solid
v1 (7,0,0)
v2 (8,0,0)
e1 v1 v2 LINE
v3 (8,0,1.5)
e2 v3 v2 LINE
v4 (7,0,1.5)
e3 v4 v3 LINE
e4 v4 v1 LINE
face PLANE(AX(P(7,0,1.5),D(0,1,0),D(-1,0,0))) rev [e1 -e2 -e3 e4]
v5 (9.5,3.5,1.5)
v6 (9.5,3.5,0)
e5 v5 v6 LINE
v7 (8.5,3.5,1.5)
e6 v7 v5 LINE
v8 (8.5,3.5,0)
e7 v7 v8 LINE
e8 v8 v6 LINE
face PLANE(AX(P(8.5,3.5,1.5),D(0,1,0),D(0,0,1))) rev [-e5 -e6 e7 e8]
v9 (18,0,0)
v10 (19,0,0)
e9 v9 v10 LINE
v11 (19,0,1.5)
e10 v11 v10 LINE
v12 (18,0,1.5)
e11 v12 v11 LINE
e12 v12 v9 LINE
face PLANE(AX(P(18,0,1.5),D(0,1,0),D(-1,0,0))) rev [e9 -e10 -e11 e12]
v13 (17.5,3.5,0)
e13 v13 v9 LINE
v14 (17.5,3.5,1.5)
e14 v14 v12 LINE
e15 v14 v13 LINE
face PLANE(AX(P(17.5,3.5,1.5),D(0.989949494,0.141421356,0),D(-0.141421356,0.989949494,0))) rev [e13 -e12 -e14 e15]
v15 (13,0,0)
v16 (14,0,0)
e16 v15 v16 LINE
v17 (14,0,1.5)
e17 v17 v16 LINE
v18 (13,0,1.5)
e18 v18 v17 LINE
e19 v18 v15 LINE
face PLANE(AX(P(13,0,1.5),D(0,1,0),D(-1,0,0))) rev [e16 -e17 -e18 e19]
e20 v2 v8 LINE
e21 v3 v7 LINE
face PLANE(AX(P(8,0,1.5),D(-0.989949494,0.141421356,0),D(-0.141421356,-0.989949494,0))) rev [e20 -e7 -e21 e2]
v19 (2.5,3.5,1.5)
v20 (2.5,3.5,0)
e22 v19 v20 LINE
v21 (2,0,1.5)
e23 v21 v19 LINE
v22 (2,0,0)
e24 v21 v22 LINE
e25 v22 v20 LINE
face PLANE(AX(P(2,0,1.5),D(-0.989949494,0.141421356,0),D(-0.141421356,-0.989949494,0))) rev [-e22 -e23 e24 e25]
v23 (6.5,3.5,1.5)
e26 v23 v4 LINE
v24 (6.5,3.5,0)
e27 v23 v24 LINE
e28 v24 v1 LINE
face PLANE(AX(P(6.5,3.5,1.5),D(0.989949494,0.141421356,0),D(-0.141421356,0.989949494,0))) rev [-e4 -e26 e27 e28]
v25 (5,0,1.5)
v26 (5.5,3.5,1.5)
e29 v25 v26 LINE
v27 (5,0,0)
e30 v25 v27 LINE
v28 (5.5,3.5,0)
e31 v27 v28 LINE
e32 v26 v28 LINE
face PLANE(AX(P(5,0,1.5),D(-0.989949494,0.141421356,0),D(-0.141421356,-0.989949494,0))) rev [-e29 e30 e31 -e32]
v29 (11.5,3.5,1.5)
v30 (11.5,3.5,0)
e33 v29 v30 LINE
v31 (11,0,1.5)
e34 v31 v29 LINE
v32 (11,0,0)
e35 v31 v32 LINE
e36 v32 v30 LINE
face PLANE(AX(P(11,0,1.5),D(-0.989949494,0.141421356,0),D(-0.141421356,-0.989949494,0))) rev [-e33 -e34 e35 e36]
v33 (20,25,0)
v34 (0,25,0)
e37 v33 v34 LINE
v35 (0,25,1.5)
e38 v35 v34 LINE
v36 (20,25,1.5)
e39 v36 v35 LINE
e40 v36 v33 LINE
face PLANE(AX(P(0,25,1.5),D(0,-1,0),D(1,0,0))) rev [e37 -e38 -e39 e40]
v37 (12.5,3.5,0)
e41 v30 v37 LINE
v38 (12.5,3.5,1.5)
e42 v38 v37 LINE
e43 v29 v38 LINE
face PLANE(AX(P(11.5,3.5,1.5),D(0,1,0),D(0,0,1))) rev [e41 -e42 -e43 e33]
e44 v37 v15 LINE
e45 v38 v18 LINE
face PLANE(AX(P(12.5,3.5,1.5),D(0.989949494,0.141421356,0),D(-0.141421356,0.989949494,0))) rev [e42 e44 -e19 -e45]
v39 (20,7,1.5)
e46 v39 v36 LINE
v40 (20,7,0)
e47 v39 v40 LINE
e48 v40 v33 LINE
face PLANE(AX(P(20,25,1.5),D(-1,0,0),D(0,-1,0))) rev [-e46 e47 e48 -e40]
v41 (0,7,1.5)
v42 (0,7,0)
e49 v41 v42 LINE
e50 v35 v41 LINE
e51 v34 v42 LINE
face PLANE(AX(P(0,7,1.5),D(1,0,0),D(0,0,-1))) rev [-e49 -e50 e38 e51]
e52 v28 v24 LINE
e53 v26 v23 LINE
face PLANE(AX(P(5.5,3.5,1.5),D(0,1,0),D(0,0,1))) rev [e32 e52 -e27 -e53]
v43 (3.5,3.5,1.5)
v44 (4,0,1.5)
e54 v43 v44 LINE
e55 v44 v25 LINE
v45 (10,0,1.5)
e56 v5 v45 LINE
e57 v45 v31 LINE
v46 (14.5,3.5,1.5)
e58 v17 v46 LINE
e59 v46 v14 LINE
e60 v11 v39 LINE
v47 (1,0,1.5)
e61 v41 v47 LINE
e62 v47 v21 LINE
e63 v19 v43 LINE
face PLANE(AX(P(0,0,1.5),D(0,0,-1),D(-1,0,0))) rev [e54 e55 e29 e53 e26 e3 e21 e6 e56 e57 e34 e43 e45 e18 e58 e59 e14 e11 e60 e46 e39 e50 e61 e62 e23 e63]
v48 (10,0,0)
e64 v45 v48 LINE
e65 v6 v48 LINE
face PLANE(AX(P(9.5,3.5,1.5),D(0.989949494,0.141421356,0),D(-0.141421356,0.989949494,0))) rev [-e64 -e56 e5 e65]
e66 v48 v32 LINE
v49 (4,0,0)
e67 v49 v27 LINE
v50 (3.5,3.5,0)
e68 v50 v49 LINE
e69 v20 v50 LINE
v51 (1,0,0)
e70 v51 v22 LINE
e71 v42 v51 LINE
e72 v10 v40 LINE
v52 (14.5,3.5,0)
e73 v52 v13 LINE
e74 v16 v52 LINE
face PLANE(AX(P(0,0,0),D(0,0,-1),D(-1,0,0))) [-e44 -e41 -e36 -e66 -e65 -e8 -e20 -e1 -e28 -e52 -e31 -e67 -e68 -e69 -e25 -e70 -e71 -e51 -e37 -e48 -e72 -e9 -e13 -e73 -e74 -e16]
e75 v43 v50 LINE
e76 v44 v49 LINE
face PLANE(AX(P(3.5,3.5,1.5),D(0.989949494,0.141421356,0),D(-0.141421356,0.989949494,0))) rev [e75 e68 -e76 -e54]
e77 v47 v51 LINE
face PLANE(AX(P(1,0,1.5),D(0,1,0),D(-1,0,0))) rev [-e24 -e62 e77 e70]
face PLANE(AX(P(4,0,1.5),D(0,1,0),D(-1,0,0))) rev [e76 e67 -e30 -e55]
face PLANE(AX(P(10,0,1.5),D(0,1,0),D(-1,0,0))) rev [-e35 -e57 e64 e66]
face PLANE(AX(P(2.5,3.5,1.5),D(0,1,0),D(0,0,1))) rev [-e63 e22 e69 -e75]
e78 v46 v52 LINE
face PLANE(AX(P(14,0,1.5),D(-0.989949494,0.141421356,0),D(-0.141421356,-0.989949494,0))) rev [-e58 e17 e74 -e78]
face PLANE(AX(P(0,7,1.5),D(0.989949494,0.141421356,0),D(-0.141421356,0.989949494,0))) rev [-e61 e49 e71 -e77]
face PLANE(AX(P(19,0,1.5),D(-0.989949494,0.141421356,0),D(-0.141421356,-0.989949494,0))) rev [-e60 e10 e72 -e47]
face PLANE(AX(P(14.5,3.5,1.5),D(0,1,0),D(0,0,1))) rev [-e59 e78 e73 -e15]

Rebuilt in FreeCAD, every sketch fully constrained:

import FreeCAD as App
import Part
import Sketcher


def add_polygon(sketch, points):
    """Adds a closed chain of lines whose ends are joined by coincident constraints."""
    first, n = sketch.GeometryCount, len(points)
    for a, b in zip(points, points[1:] + points[:1]):
        sketch.addGeometry(Part.LineSegment(App.Vector(*a, 0), App.Vector(*b, 0)), False)
    for i in range(n):
        sketch.addConstraint(Sketcher.Constraint("Coincident", first + i, 2, first + (i + 1) % n, 1))

doc = App.newDocument("Part")
params = doc.addObject("Spreadsheet::Sheet", "Params")
for row, (alias, value) in enumerate([
    ("sketch1_width", "1 mm"),
    ("sketch1_width2", "3 mm"),
    ("sketch1_width3", "20 mm"),
    ("sketch1_height", "18 mm"),
    ("pad1_length", "1.5 mm"),
], start=1):
    params.set(f"A{row}", alias)
    params.set(f"B{row}", "=" + value)
    params.setAlias(f"B{row}", alias)

body = doc.addObject("PartDesign::Body", "Body")

# Sketch on XY plane
sketch1 = body.newObject("Sketcher::SketchObject", "Sketch")
sketch1.AttachmentSupport = (doc.getObject("XY_Plane"), [""])
sketch1.MapMode = "FlatFace"
add_polygon(sketch1, [(0, 7), (1, 0), (2, 0), (2.5, 3.5), (3.5, 3.5), (4, 0), (5, 0), (5.5, 3.5), (6.5, 3.5), (7, 0), (8, 0), (8.5, 3.5), (9.5, 3.5), (10, 0), (11, 0), (11.5, 3.5), (12.5, 3.5), (13, 0), (14, 0), (14.5, 3.5), (17.5, 3.5), (18, 0), (19, 0), (20, 7), (20, 25), (0, 25)])  # lines 0-25
sketch1.addConstraint([
    Sketcher.Constraint("Horizontal", 1),
    Sketcher.Constraint("Horizontal", 3),
    Sketcher.Constraint("Horizontal", 5),
    Sketcher.Constraint("Horizontal", 7),
    Sketcher.Constraint("Horizontal", 9),
    Sketcher.Constraint("Horizontal", 11),
    Sketcher.Constraint("Horizontal", 13),
    Sketcher.Constraint("Horizontal", 15),
    Sketcher.Constraint("Horizontal", 17),
    Sketcher.Constraint("Horizontal", 19),
    Sketcher.Constraint("Horizontal", 21),
    Sketcher.Constraint("Vertical", 23),
    Sketcher.Constraint("Horizontal", 24),
    Sketcher.Constraint("Vertical", 25),
    Sketcher.Constraint("PointOnObject", 0, 2, -1),
    Sketcher.Constraint("PointOnObject", 4, 2, -1),
    Sketcher.Constraint("PointOnObject", 8, 2, -1),
    Sketcher.Constraint("PointOnObject", 12, 2, -1),
    Sketcher.Constraint("PointOnObject", 16, 2, -1),
    Sketcher.Constraint("PointOnObject", 20, 2, -1),
    Sketcher.Constraint("PointOnObject", 24, 2, -2),
    Sketcher.Constraint("Parallel", 0, 4),
    Sketcher.Constraint("Parallel", 2, 6),
    Sketcher.Constraint("Parallel", 4, 8),
    Sketcher.Constraint("Parallel", 6, 10),
    Sketcher.Constraint("Parallel", 8, 12),
    Sketcher.Constraint("Parallel", 10, 14),
    Sketcher.Constraint("Parallel", 12, 16),
    Sketcher.Constraint("Parallel", 14, 18),
    Sketcher.Constraint("Parallel", 16, 20),
    Sketcher.Constraint("Parallel", 18, 22),
    Sketcher.Constraint("Horizontal", 3, 2, 6, 2),
    Sketcher.Constraint("Horizontal", 7, 2, 10, 2),
    Sketcher.Constraint("Horizontal", 11, 2, 14, 2),
    Sketcher.Constraint("Horizontal", 15, 2, 18, 2),
    Sketcher.Constraint("Horizontal", 22, 2, 25, 2),
    Sketcher.Constraint("Equal", 1, 3),
    Sketcher.Constraint("Equal", 3, 5),
    Sketcher.Constraint("Equal", 5, 7),
    Sketcher.Constraint("Equal", 7, 9),
    Sketcher.Constraint("Equal", 9, 11),
    Sketcher.Constraint("Equal", 11, 13),
    Sketcher.Constraint("Equal", 13, 15),
    Sketcher.Constraint("Equal", 15, 17),
    Sketcher.Constraint("Equal", 17, 21),
    Sketcher.Constraint("Equal", 2, 4),
    Sketcher.Constraint("DistanceX", 1, 1, 1, 2, 1.0),
    Sketcher.Constraint("DistanceX", 19, 1, 19, 2, 3.0),
    Sketcher.Constraint("DistanceX", 24, 2, 24, 1, 20.0),
    Sketcher.Constraint("DistanceY", 23, 1, 23, 2, 18.0),
    Sketcher.Constraint("DistanceX", -1, 1, 0, 2, 1.0),
    Sketcher.Constraint("DistanceY", -1, 1, 22, 2, 7.0),
])
sketch1.setExpression("Constraints[72]", "Params.sketch1_width")
sketch1.setExpression("Constraints[73]", "Params.sketch1_width2")
sketch1.setExpression("Constraints[74]", "Params.sketch1_width3")
sketch1.setExpression("Constraints[75]", "Params.sketch1_height")
pad1 = body.newObject("PartDesign::Pad", "Pad")
pad1.Profile = sketch1
pad1.setExpression("Length", "Params.pad1_length")

doc.recompute()
